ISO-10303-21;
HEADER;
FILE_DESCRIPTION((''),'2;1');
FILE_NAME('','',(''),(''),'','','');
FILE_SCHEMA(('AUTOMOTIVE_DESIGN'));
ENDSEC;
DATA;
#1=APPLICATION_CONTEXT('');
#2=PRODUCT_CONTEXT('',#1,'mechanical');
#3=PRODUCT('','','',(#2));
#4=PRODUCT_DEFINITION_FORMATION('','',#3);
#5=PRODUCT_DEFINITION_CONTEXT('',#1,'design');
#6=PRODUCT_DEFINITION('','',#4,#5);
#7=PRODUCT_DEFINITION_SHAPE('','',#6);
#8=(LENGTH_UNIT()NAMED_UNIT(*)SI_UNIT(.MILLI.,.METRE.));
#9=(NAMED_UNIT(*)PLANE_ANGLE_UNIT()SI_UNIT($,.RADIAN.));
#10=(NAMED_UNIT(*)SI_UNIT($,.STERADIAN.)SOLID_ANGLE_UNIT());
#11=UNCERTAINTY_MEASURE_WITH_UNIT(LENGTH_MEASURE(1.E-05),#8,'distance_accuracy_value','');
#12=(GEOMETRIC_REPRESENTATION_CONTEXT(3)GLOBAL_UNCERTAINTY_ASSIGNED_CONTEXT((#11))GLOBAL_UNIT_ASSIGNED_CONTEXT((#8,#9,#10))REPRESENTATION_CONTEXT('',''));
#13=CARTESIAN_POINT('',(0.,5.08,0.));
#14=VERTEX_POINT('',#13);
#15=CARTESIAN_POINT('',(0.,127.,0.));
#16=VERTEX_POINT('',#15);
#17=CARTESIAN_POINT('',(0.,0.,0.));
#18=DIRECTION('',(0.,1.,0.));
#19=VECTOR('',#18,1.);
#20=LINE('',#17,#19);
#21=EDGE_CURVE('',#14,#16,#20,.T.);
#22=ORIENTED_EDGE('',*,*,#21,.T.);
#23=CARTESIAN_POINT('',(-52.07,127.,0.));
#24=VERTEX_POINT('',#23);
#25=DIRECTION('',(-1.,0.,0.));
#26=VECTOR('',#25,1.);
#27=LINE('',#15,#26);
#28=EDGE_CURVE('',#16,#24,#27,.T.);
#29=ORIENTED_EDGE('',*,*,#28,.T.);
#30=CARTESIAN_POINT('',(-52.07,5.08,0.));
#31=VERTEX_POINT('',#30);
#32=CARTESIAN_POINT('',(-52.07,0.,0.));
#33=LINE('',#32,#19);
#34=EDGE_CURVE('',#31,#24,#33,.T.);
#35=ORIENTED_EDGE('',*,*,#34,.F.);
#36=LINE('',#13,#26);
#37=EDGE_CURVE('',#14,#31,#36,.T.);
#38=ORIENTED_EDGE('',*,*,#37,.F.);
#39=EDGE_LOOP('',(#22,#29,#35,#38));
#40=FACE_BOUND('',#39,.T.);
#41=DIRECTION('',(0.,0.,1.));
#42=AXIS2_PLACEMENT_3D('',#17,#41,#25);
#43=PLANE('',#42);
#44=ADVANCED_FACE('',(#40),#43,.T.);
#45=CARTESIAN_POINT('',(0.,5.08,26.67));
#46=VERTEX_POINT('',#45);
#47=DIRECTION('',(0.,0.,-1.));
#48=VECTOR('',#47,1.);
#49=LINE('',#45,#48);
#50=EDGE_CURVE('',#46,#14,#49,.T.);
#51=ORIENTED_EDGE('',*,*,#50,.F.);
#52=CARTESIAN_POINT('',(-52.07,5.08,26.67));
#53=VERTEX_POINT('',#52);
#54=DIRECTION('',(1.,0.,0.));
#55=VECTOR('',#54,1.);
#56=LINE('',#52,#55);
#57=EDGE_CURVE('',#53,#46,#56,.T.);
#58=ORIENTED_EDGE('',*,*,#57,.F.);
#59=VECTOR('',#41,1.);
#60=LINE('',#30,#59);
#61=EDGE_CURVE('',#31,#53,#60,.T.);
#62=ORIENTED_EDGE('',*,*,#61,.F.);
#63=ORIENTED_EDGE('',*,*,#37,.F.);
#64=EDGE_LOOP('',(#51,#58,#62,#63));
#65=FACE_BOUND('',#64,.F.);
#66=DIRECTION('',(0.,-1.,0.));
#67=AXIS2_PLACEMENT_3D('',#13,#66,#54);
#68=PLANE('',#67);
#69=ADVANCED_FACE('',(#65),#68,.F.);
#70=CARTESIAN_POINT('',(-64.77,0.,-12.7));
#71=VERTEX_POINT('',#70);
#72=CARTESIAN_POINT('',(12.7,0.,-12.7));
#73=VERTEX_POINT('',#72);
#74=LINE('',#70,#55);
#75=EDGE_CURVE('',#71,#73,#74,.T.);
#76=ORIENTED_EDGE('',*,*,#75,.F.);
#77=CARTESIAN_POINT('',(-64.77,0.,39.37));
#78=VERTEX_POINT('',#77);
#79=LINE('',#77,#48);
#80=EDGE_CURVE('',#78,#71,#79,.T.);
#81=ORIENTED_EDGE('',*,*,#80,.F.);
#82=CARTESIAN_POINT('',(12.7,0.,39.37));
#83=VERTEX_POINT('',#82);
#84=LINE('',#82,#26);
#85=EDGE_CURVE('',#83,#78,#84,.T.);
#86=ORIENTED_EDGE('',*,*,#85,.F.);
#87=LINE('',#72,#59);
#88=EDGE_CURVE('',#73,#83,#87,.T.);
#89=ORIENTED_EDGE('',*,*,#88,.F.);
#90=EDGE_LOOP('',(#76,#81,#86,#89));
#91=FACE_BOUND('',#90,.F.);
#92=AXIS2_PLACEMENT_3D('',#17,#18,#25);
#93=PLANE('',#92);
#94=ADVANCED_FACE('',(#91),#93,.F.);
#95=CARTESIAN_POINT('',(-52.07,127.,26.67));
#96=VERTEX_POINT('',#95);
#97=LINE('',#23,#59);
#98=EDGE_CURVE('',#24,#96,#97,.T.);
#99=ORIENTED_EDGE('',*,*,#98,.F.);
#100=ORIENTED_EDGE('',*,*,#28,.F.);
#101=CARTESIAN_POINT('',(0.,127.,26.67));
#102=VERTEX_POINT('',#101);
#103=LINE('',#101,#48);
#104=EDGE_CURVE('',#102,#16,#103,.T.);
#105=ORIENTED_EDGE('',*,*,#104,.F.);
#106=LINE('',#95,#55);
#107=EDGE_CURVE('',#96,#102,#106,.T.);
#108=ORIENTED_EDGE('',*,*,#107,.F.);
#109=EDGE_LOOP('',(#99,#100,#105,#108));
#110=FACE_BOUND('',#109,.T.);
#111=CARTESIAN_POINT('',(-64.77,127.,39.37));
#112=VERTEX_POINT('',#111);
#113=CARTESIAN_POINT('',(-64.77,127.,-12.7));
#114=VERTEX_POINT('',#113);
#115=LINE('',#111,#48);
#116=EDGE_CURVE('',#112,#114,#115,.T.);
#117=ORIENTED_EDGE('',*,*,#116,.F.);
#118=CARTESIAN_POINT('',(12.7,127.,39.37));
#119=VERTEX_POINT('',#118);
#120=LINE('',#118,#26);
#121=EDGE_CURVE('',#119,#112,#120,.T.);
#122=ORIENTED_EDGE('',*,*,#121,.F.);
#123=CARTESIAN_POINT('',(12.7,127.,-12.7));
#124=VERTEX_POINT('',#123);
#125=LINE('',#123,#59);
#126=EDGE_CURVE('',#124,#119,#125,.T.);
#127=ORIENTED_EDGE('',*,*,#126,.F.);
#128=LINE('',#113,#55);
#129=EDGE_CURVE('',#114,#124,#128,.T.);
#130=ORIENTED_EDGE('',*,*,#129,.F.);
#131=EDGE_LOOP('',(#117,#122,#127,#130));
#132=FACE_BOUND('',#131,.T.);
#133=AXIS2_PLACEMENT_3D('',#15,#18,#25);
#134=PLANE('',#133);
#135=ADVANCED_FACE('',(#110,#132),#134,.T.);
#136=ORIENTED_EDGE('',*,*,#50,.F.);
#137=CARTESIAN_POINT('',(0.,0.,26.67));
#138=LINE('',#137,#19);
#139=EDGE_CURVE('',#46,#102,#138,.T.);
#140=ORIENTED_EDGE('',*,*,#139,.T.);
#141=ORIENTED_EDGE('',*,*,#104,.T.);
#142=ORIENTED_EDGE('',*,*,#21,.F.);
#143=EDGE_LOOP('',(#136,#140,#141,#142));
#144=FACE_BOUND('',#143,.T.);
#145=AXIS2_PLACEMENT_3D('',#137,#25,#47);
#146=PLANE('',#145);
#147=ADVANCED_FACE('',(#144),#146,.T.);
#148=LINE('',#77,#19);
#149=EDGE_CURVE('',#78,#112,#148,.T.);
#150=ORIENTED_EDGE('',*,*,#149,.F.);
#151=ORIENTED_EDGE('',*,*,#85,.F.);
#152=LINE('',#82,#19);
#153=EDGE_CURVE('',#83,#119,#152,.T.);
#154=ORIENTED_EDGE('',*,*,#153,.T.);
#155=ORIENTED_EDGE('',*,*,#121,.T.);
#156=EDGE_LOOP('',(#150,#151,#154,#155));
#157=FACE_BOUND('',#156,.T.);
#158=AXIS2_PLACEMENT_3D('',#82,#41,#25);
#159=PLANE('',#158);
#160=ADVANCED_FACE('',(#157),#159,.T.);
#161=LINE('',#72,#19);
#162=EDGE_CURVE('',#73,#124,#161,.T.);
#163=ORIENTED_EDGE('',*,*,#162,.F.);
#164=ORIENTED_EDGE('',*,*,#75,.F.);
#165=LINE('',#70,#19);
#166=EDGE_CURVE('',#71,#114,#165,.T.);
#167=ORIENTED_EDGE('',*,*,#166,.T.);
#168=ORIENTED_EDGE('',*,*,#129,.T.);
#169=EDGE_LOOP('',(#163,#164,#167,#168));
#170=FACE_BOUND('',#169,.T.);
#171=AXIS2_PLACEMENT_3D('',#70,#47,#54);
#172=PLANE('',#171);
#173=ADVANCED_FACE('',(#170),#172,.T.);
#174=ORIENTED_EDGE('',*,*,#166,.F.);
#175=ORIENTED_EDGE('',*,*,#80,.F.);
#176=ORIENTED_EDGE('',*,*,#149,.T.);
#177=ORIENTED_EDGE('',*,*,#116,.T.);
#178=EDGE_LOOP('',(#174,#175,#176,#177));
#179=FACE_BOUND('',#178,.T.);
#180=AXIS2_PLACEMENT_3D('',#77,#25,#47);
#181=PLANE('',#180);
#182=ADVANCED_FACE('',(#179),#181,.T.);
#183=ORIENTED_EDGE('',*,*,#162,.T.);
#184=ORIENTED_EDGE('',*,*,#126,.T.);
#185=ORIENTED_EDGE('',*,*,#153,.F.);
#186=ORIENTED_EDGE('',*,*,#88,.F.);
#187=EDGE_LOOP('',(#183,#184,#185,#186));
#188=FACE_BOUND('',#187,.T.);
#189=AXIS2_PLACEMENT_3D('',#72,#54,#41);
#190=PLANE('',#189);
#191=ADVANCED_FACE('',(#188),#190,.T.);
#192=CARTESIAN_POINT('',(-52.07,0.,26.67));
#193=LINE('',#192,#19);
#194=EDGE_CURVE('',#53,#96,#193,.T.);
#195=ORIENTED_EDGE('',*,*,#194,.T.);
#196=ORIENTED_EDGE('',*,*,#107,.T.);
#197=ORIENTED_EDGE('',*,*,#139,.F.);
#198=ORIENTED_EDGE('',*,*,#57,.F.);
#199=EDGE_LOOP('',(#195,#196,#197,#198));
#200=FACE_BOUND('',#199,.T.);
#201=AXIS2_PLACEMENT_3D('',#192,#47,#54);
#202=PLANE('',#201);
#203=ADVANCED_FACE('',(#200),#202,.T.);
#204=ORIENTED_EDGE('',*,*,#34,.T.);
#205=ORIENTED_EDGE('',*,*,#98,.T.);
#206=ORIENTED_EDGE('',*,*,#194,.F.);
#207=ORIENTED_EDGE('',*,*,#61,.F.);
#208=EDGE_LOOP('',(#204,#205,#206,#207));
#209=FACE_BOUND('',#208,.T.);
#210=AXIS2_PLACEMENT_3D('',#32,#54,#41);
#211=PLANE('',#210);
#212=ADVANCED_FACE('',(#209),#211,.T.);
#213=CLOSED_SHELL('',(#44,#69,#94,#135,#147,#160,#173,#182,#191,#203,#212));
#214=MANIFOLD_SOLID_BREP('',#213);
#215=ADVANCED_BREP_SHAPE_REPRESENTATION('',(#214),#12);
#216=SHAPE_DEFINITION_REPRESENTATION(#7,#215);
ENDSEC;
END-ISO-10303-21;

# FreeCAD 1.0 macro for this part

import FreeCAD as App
import Part
import Sketcher
from FreeCAD import Vector
Q = App.Units.Quantity

doc = App.newDocument("Part")
body = doc.addObject("PartDesign::Body", "Body")

# Sketch on XZ plane
sketch1 = body.newObject("Sketcher::SketchObject", "Sketch")
sketch1.AttachmentSupport = (doc.getObject("XZ_Plane"), [""])
sketch1.MapMode = "FlatFace"
sketch1.addGeometry([
    Part.LineSegment(Vector(-64.77, 39.37, 0), Vector(12.7, 39.37, 0)),  # 0
    Part.LineSegment(Vector(12.7, 39.37, 0), Vector(12.7, -12.7, 0)),  # 1
    Part.LineSegment(Vector(12.7, -12.7, 0), Vector(-64.77, -12.7, 0)),  # 2
    Part.LineSegment(Vector(-64.77, -12.7, 0), Vector(-64.77, 39.37, 0)),  # 3
    Part.LineSegment(Vector(-52.07, 0, 0), Vector(0, 0, 0)),  # 4
    Part.LineSegment(Vector(0, 0, 0), Vector(0, 26.67, 0)),  # 5
    Part.LineSegment(Vector(0, 26.67, 0), Vector(-52.07, 26.67, 0)),  # 6
    Part.LineSegment(Vector(-52.07, 26.67, 0), Vector(-52.07, 0, 0)),  # 7
], False)
sketch1.addConstraint([
    Sketcher.Constraint("Coincident", 0, 2, 1, 1),
    Sketcher.Constraint("Coincident", 1, 2, 2, 1),
    Sketcher.Constraint("Coincident", 2, 2, 3, 1),
    Sketcher.Constraint("Coincident", 3, 2, 0, 1),
    Sketcher.Constraint("Coincident", 4, 2, 5, 1),
    Sketcher.Constraint("Coincident", 5, 2, 6, 1),
    Sketcher.Constraint("Coincident", 6, 2, 7, 1),
    Sketcher.Constraint("Coincident", 7, 2, 4, 1),
    Sketcher.Constraint("Horizontal", 0),
    Sketcher.Constraint("Vertical", 1),
    Sketcher.Constraint("Horizontal", 2),
    Sketcher.Constraint("Vertical", 3),
    Sketcher.Constraint("Horizontal", 4),
    Sketcher.Constraint("Vertical", 5),
    Sketcher.Constraint("Horizontal", 6),
    Sketcher.Constraint("Vertical", 7),
    Sketcher.Constraint("Coincident", 4, 2, -1, 1),
    Sketcher.Constraint("Equal", 6, 1),
    Sketcher.Constraint("DistanceX", 4, 1, 4, 2, Q("2.05 in")),
    Sketcher.Constraint("DistanceY", 5, 1, 5, 2, Q("1.05 in")),
    Sketcher.Constraint("DistanceX", -1, 1, 0, 2, Q("0.5 in")),
    Sketcher.Constraint("DistanceY", 1, 2, -1, 1, Q("0.5 in")),
    Sketcher.Constraint("DistanceX", 3, 2, 6, 2, Q("0.5 in")),
])
pad1 = body.newObject("PartDesign::Pad", "Pad")
pad1.Profile = sketch1
pad1.Length = Q("5 in")
pad1.Reversed = True

# Sketch on XZ plane
sketch2 = body.newObject("Sketcher::SketchObject", "Sketch001")
sketch2.AttachmentSupport = (doc.getObject("XZ_Plane"), [""])
sketch2.MapMode = "FlatFace"
sketch2.addGeometry([
    Part.LineSegment(Vector(-52.07, 0, 0), Vector(0, 0, 0)),
    Part.LineSegment(Vector(0, 0, 0), Vector(0, 26.67, 0)),
    Part.LineSegment(Vector(0, 26.67, 0), Vector(-52.07, 26.67, 0)),
    Part.LineSegment(Vector(-52.07, 26.67, 0), Vector(-52.07, 0, 0)),
], False)
sketch2.addConstraint([
    Sketcher.Constraint("Coincident", 0, 2, 1, 1),
    Sketcher.Constraint("Coincident", 1, 2, 2, 1),
    Sketcher.Constraint("Coincident", 2, 2, 3, 1),
    Sketcher.Constraint("Coincident", 3, 2, 0, 1),
    Sketcher.Constraint("Horizontal", 0),
    Sketcher.Constraint("Vertical", 1),
    Sketcher.Constraint("Horizontal", 2),
    Sketcher.Constraint("Vertical", 3),
    Sketcher.Constraint("Coincident", 0, 2, -1, 1),
    Sketcher.Constraint("DistanceX", 0, 1, 0, 2, Q("2.05 in")),
    Sketcher.Constraint("DistanceY", 1, 1, 1, 2, Q("1.05 in")),
])
pad2 = body.newObject("PartDesign::Pad", "Pad001")
pad2.Profile = sketch2
pad2.Length = Q("0.2 in")
pad2.Reversed = True

doc.recompute()
